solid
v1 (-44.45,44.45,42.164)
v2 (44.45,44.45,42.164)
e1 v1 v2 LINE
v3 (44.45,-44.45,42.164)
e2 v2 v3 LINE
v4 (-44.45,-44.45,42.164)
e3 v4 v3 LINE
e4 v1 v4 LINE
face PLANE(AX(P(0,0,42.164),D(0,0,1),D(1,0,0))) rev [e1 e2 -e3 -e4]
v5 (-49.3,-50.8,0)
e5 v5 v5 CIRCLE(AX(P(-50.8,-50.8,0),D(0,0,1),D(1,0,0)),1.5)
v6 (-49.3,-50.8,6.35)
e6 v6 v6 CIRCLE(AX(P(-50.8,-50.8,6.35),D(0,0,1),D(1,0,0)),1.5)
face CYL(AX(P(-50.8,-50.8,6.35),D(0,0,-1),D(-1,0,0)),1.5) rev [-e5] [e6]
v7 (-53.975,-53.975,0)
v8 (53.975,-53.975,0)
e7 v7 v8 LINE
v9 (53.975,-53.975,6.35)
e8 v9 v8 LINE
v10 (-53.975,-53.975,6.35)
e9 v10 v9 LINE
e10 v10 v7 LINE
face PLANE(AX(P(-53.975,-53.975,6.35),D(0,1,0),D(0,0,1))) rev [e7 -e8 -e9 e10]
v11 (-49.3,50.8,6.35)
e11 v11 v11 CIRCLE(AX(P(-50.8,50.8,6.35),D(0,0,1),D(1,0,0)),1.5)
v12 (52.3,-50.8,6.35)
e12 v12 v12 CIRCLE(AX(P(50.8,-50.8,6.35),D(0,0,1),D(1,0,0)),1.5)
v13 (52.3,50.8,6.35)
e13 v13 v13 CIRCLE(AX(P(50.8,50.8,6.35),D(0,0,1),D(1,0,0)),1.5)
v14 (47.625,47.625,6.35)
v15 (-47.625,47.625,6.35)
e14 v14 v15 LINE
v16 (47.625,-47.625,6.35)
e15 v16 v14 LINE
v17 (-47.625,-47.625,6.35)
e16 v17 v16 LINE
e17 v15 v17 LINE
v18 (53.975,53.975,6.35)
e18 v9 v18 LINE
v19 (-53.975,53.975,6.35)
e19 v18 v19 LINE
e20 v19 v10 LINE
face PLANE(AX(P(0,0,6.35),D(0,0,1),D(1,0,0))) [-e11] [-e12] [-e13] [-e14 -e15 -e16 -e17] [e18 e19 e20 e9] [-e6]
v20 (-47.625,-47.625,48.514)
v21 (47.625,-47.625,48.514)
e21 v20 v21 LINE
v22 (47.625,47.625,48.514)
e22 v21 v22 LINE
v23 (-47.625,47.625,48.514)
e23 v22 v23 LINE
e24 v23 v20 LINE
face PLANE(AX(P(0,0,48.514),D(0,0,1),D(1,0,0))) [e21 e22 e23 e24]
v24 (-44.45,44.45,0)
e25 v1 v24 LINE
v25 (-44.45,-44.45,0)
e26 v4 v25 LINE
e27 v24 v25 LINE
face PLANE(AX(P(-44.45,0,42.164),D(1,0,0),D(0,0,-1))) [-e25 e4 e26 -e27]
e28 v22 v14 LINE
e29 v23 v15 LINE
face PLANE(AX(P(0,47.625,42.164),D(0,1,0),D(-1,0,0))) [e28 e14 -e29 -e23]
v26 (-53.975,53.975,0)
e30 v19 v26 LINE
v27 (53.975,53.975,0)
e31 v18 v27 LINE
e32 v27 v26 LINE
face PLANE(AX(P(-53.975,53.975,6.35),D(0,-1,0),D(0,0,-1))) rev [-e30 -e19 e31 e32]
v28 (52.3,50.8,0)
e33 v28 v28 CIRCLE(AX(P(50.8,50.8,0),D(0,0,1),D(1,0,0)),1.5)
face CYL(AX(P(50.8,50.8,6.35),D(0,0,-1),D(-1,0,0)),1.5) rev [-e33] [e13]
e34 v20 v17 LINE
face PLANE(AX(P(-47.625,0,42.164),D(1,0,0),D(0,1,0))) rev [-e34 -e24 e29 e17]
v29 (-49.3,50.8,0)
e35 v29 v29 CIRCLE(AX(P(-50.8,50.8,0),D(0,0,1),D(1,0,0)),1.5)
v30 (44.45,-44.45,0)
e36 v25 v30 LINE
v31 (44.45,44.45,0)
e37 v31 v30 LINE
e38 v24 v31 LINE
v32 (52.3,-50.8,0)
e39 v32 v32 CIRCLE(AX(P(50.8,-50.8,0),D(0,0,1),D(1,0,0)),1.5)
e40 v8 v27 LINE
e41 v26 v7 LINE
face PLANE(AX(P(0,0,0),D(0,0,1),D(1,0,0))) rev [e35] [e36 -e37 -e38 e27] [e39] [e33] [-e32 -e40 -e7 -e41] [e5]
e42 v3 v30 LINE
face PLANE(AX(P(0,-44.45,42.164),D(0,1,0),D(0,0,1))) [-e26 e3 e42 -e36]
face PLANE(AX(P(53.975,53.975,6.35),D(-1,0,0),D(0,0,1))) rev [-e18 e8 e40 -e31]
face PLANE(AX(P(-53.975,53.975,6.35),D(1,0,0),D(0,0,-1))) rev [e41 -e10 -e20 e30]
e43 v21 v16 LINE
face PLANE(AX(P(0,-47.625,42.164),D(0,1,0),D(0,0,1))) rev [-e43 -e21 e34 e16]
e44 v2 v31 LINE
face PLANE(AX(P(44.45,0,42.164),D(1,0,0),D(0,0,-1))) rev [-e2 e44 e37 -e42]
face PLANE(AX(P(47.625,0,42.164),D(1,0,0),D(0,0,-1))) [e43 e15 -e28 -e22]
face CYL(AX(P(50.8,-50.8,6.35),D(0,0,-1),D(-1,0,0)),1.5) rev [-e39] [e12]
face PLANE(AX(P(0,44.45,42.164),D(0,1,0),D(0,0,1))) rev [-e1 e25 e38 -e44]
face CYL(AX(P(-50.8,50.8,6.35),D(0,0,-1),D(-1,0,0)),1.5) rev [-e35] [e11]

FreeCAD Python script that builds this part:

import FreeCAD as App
import Part
import Sketcher
Q = App.Units.Quantity

doc = App.newDocument("Part")
body = doc.addObject("PartDesign::Body", "Body")

# Sketch on XY plane
sketch1 = body.newObject("Sketcher::SketchObject", "Sketch")
sketch1.AttachmentSupport = (doc.getObject("XY_Plane"), [""])
sketch1.MapMode = "FlatFace"
sketch1.addGeometry(Part.LineSegment(App.Vector(-48, 48, 0), App.Vector(-48, -48, 0)), False)
sketch1.addGeometry(Part.LineSegment(App.Vector(-48, -48, 0), App.Vector(48, -48, 0)), False)
sketch1.addGeometry(Part.LineSegment(App.Vector(48, -48, 0), App.Vector(48, 48, 0)), False)
sketch1.addGeometry(Part.LineSegment(App.Vector(48, 48, 0), App.Vector(-48, 48, 0)), False)
sketch1.addGeometry(Part.LineSegment(App.Vector(44, -44, 0), App.Vector(-44, -44, 0)), False)
sketch1.addGeometry(Part.LineSegment(App.Vector(-44, -44, 0), App.Vector(-44, 44, 0)), False)
sketch1.addGeometry(Part.LineSegment(App.Vector(-44, 44, 0), App.Vector(44, 44, 0)), False)
sketch1.addGeometry(Part.LineSegment(App.Vector(44, 44, 0), App.Vector(44, -44, 0)), False)
sketch1.addConstraint(Sketcher.Constraint("Coincident", 0, 2, 1, 1))
sketch1.addConstraint(Sketcher.Constraint("Coincident", 1, 2, 2, 1))
sketch1.addConstraint(Sketcher.Constraint("Coincident", 2, 2, 3, 1))
sketch1.addConstraint(Sketcher.Constraint("Coincident", 3, 2, 0, 1))
sketch1.addConstraint(Sketcher.Constraint("Coincident", 4, 2, 5, 1))
sketch1.addConstraint(Sketcher.Constraint("Coincident", 5, 2, 6, 1))
sketch1.addConstraint(Sketcher.Constraint("Coincident", 6, 2, 7, 1))
sketch1.addConstraint(Sketcher.Constraint("Coincident", 7, 2, 4, 1))
sketch1.addConstraint(Sketcher.Constraint("Vertical", 0))
sketch1.addConstraint(Sketcher.Constraint("Horizontal", 1))
sketch1.addConstraint(Sketcher.Constraint("Vertical", 2))
sketch1.addConstraint(Sketcher.Constraint("Horizontal", 3))
sketch1.addConstraint(Sketcher.Constraint("Horizontal", 4))
sketch1.addConstraint(Sketcher.Constraint("Vertical", 5))
sketch1.addConstraint(Sketcher.Constraint("Horizontal", 6))
sketch1.addConstraint(Sketcher.Constraint("Vertical", 7))
sketch1.addConstraint(Sketcher.Constraint("Symmetric", 0, 2, 2, 2, -1, 1))
sketch1.addConstraint(Sketcher.Constraint("Symmetric", 4, 2, 6, 2, -1, 1))
sketch1.addConstraint(Sketcher.Constraint("Equal", 3, 0))
sketch1.addConstraint(Sketcher.Constraint("Equal", 6, 5))
sketch1.addConstraint(Sketcher.Constraint("DistanceX", 4, 2, 4, 1, Q("3.5 in")))
sketch1.addConstraint(Sketcher.Constraint("DistanceX", 1, 1, 1, 2, Q("3.75 in")))
pad1 = body.newObject("PartDesign::Pad", "Pad")
pad1.Profile = sketch1
pad1.Length = Q("1.66 in")

# Sketch on XY plane
sketch2 = body.newObject("Sketcher::SketchObject", "Sketch001")
sketch2.AttachmentSupport = (doc.getObject("XY_Plane"), [""])
sketch2.MapMode = "FlatFace"
sketch2.addGeometry(Part.LineSegment(App.Vector(-54, 54, 0), App.Vector(-54, -54, 0)), False)
sketch2.addGeometry(Part.LineSegment(App.Vector(-54, -54, 0), App.Vector(54, -54, 0)), False)
sketch2.addGeometry(Part.LineSegment(App.Vector(54, -54, 0), App.Vector(54, 54, 0)), False)
sketch2.addGeometry(Part.LineSegment(App.Vector(54, 54, 0), App.Vector(-54, 54, 0)), False)
sketch2.addGeometry(Part.Circle(App.Vector(-50.8, -50.8, 0), App.Vector(0, 0, 1), 1.5), False)
sketch2.addGeometry(Part.Circle(App.Vector(50.8, -50.8, 0), App.Vector(0, 0, 1), 1.5), False)
sketch2.addGeometry(Part.Circle(App.Vector(-50.8, 50.8, 0), App.Vector(0, 0, 1), 1.5), False)
sketch2.addGeometry(Part.LineSegment(App.Vector(47.6, -47.6, 0), App.Vector(-47.6, -47.6, 0)), False)
sketch2.addGeometry(Part.LineSegment(App.Vector(-47.6, -47.6, 0), App.Vector(-47.6, 47.6, 0)), False)
sketch2.addGeometry(Part.LineSegment(App.Vector(-47.6, 47.6, 0), App.Vector(47.6, 47.6, 0)), False)
sketch2.addGeometry(Part.LineSegment(App.Vector(47.6, 47.6, 0), App.Vector(47.6, -47.6, 0)), False)
sketch2.addGeometry(Part.Circle(App.Vector(50.8, 50.8, 0), App.Vector(0, 0, 1), 1.5), False)
sketch2.addConstraint(Sketcher.Constraint("Coincident", 0, 2, 1, 1))
sketch2.addConstraint(Sketcher.Constraint("Coincident", 1, 2, 2, 1))
sketch2.addConstraint(Sketcher.Constraint("Coincident", 2, 2, 3, 1))
sketch2.addConstraint(Sketcher.Constraint("Coincident", 3, 2, 0, 1))
sketch2.addConstraint(Sketcher.Constraint("Coincident", 7, 2, 8, 1))
sketch2.addConstraint(Sketcher.Constraint("Coincident", 8, 2, 9, 1))
sketch2.addConstraint(Sketcher.Constraint("Coincident", 9, 2, 10, 1))
sketch2.addConstraint(Sketcher.Constraint("Coincident", 10, 2, 7, 1))
sketch2.addConstraint(Sketcher.Constraint("Vertical", 0))
sketch2.addConstraint(Sketcher.Constraint("Horizontal", 1))
sketch2.addConstraint(Sketcher.Constraint("Vertical", 2))
sketch2.addConstraint(Sketcher.Constraint("Horizontal", 3))
sketch2.addConstraint(Sketcher.Constraint("Horizontal", 7))
sketch2.addConstraint(Sketcher.Constraint("Vertical", 8))
sketch2.addConstraint(Sketcher.Constraint("Horizontal", 9))
sketch2.addConstraint(Sketcher.Constraint("Vertical", 10))
sketch2.addConstraint(Sketcher.Constraint("Equal", 4, 5))
sketch2.addConstraint(Sketcher.Constraint("Equal", 5, 6))
sketch2.addConstraint(Sketcher.Constraint("Equal", 6, 11))
sketch2.addConstraint(Sketcher.Constraint("Symmetric", 5, 3, 6, 3, -1, 1))
sketch2.addConstraint(Sketcher.Constraint("Symmetric", 4, 3, 11, 3, -1, 1))
sketch2.addConstraint(Sketcher.Constraint("Symmetric", 0, 2, 2, 2, -1, 1))
sketch2.addConstraint(Sketcher.Constraint("Symmetric", 7, 2, 9, 2, -1, 1))
sketch2.addConstraint(Sketcher.Constraint("Symmetric", 4, 3, 5, 3, -2))
sketch2.addConstraint(Sketcher.Constraint("Equal", 3, 0))
sketch2.addConstraint(Sketcher.Constraint("Equal", 9, 8))
sketch2.addConstraint(Sketcher.Constraint("DistanceX", 4, 3, -1, 1, Q("2 in")))
sketch2.addConstraint(Sketcher.Constraint("DistanceY", 4, 3, -1, 1, Q("2 in")))
sketch2.addConstraint(Sketcher.Constraint("DistanceX", 7, 2, 1, 2, Q("4 in")))
sketch2.addConstraint(Sketcher.Constraint("DistanceX", 1, 1, 1, 2, Q("4.25 in")))
sketch2.addConstraint(Sketcher.Constraint("Diameter", 4, Q("3 mm")))
pad2 = body.newObject("PartDesign::Pad", "Pad001")
pad2.Profile = sketch2
pad2.Length = Q("0.25 in")

# Sketch on XY plane
sketch3 = body.newObject("Sketcher::SketchObject", "Sketch002")
sketch3.AttachmentSupport = (doc.getObject("XY_Plane"), [""])
sketch3.MapMode = "FlatFace"
sketch3.AttachmentOffset = App.Placement(App.Vector(0, 0, 1.66 * 25.4), App.Rotation())
sketch3.addGeometry(Part.LineSegment(App.Vector(-48, 48, 0), App.Vector(-48, -48, 0)), False)
sketch3.addGeometry(Part.LineSegment(App.Vector(-48, -48, 0), App.Vector(48, -48, 0)), False)
sketch3.addGeometry(Part.LineSegment(App.Vector(48, -48, 0), App.Vector(48, 48, 0)), False)
sketch3.addGeometry(Part.LineSegment(App.Vector(48, 48, 0), App.Vector(-48, 48, 0)), False)
sketch3.addConstraint(Sketcher.Constraint("Coincident", 0, 2, 1, 1))
sketch3.addConstraint(Sketcher.Constraint("Coincident", 1, 2, 2, 1))
sketch3.addConstraint(Sketcher.Constraint("Coincident", 2, 2, 3, 1))
sketch3.addConstraint(Sketcher.Constraint("Coincident", 3, 2, 0, 1))
sketch3.addConstraint(Sketcher.Constraint("Vertical", 0))
sketch3.addConstraint(Sketcher.Constraint("Horizontal", 1))
sketch3.addConstraint(Sketcher.Constraint("Vertical", 2))
sketch3.addConstraint(Sketcher.Constraint("Horizontal", 3))
sketch3.addConstraint(Sketcher.Constraint("Symmetric", 0, 2, 2, 2, -1, 1))
sketch3.addConstraint(Sketcher.Constraint("Equal", 3, 0))
sketch3.addConstraint(Sketcher.Constraint("DistanceX", 1, 1, 1, 2, Q("3.75 in")))
pad3 = body.newObject("PartDesign::Pad", "Pad002")
pad3.Profile = sketch3
pad3.Length = Q("0.25 in")

doc.recompute()
